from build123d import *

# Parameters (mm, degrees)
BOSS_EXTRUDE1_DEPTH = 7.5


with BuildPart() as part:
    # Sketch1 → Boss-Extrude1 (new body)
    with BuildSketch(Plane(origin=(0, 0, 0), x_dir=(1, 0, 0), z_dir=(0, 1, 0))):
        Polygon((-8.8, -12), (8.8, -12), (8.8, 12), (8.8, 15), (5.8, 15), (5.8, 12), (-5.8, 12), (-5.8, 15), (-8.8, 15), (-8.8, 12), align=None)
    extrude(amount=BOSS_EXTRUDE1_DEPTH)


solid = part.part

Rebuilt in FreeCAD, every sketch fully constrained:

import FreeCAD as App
import Part
import Sketcher


def add_polygon(sketch, points):
    """Adds a closed chain of lines whose ends are joined by coincident constraints."""
    first, n = sketch.GeometryCount, len(points)
    for a, b in zip(points, points[1:] + points[:1]):
        sketch.addGeometry(Part.LineSegment(App.Vector(*a, 0), App.Vector(*b, 0)), False)
    for i in range(n):
        sketch.addConstraint(Sketcher.Constraint("Coincident", first + i, 2, first + (i + 1) % n, 1))

doc = App.newDocument("Part")
body = doc.addObject("PartDesign::Body", "Body")

# Sketch on XZ plane
sketch1 = body.newObject("Sketcher::SketchObject", "Sketch")
sketch1.AttachmentSupport = (doc.getObject("XZ_Plane"), [""])
sketch1.MapMode = "FlatFace"
add_polygon(sketch1, [(-8.8, 12), (8.8, 12), (8.8, -15), (5.8, -15), (5.8, -12), (-5.8, -12), (-5.8, -15), (-8.8, -15)])  # lines 0-7
sketch1.addConstraint([
    Sketcher.Constraint("Horizontal", 0),
    Sketcher.Constraint("Vertical", 1),
    Sketcher.Constraint("Horizontal", 2),
    Sketcher.Constraint("Vertical", 3),
    Sketcher.Constraint("Horizontal", 4),
    Sketcher.Constraint("Vertical", 5),
    Sketcher.Constraint("Horizontal", 6),
    Sketcher.Constraint("Vertical", 7),
    Sketcher.Constraint("Symmetric", 2, 2, 5, 2, -2),
    Sketcher.Constraint("Equal", 2, 6),
    Sketcher.Constraint("Equal", 6, 3),
    Sketcher.Constraint("DistanceX", 2, 2, 2, 1, 3.0),
    Sketcher.Constraint("DistanceY", 1, 2, 1, 1, 27.0),
    Sketcher.Constraint("DistanceX", 0, 1, 0, 2, 17.6),
    Sketcher.Constraint("DistanceY", -1, 1, 0, 2, 12.0),
])
pad1 = body.newObject("PartDesign::Pad", "Pad")
pad1.Profile = sketch1
pad1.Length = 7.5
pad1.Reversed = True

doc.recompute()
